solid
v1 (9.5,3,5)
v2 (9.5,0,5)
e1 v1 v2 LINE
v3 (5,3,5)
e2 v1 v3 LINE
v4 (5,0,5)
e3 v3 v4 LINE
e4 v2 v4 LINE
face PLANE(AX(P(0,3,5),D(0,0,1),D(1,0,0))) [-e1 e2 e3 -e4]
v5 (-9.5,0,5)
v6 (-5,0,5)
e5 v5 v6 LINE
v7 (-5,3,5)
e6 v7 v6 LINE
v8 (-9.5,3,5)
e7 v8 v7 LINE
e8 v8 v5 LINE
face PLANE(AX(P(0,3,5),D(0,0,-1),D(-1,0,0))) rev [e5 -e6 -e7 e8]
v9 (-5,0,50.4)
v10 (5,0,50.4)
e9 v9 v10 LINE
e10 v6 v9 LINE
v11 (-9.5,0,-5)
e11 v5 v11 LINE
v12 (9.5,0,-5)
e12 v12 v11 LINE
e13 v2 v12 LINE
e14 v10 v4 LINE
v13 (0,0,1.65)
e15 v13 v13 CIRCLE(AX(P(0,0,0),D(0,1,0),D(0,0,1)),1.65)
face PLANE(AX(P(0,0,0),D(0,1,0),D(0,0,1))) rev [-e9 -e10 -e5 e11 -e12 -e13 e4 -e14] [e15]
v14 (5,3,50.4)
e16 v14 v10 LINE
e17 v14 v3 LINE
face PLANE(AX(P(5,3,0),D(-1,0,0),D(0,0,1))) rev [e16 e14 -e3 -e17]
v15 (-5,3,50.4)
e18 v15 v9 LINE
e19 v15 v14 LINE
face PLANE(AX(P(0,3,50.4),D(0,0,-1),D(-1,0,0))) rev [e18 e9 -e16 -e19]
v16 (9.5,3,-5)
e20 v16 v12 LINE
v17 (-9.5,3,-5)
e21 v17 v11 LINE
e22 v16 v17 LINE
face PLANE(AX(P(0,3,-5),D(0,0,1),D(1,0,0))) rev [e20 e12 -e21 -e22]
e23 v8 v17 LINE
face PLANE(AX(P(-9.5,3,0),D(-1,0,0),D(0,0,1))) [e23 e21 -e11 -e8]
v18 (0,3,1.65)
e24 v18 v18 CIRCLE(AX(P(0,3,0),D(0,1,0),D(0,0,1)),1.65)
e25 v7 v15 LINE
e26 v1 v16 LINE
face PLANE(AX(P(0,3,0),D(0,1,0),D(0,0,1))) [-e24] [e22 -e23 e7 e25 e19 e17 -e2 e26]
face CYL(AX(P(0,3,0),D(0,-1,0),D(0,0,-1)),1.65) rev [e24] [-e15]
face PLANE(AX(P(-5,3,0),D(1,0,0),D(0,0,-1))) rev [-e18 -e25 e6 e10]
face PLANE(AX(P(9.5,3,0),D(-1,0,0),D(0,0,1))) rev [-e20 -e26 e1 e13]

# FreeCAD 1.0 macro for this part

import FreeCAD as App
import Part
import Sketcher
from FreeCAD import Vector
Q = App.Units.Quantity


def add_polygon(sketch, points):
    """Adds a closed chain of lines whose ends are joined by coincident constraints."""
    first, n = sketch.GeometryCount, len(points)
    for a, b in zip(points, points[1:] + points[:1]):
        sketch.addGeometry(Part.LineSegment(App.Vector(*a, 0), App.Vector(*b, 0)), False)
    for i in range(n):
        sketch.addConstraint(Sketcher.Constraint("Coincident", first + i, 2, first + (i + 1) % n, 1))

doc = App.newDocument("Part")
body = doc.addObject("PartDesign::Body", "Body")

# Sketch on XZ plane
sketch1 = body.newObject("Sketcher::SketchObject", "Sketch")
sketch1.AttachmentSupport = (doc.getObject("XZ_Plane"), [""])
sketch1.MapMode = "FlatFace"
add_polygon(sketch1, [(-5, 5), (-5, 50.4), (5, 50.4), (5, 5), (9.5, 5), (9.5, -5), (-9.5, -5), (-9.5, 5)])  # lines 0-7
sketch1.addGeometry(Part.Circle(Vector(0, 0, 0), Vector(0, 0, 1), 1.6), False)  # 8
sketch1.addConstraint([
    Sketcher.Constraint("Vertical", 0),
    Sketcher.Constraint("Horizontal", 1),
    Sketcher.Constraint("Vertical", 2),
    Sketcher.Constraint("Horizontal", 3),
    Sketcher.Constraint("Vertical", 4),
    Sketcher.Constraint("Horizontal", 5),
    Sketcher.Constraint("Vertical", 6),
    Sketcher.Constraint("Horizontal", 7),
    Sketcher.Constraint("Coincident", 8, 3, -1, 1),
    Sketcher.Constraint("Symmetric", 3, 2, 5, 2, -1, 1),
    Sketcher.Constraint("Symmetric", 2, 2, 7, 2, -2),
    Sketcher.Constraint("Equal", 1, 4),
    Sketcher.Constraint("Diameter", 8, Q("3.3 mm")),
    Sketcher.Constraint("DistanceX", 1, 1, 1, 2, Q("10 mm")),
    Sketcher.Constraint("DistanceX", 5, 2, 5, 1, Q("19 mm")),
    Sketcher.Constraint("DistanceY", 0, 1, 0, 2, Q("45.4 mm")),
])
pad1 = body.newObject("PartDesign::Pad", "Pad")
pad1.Profile = sketch1
pad1.Length = 3
pad1.Reversed = True

doc.recompute()
